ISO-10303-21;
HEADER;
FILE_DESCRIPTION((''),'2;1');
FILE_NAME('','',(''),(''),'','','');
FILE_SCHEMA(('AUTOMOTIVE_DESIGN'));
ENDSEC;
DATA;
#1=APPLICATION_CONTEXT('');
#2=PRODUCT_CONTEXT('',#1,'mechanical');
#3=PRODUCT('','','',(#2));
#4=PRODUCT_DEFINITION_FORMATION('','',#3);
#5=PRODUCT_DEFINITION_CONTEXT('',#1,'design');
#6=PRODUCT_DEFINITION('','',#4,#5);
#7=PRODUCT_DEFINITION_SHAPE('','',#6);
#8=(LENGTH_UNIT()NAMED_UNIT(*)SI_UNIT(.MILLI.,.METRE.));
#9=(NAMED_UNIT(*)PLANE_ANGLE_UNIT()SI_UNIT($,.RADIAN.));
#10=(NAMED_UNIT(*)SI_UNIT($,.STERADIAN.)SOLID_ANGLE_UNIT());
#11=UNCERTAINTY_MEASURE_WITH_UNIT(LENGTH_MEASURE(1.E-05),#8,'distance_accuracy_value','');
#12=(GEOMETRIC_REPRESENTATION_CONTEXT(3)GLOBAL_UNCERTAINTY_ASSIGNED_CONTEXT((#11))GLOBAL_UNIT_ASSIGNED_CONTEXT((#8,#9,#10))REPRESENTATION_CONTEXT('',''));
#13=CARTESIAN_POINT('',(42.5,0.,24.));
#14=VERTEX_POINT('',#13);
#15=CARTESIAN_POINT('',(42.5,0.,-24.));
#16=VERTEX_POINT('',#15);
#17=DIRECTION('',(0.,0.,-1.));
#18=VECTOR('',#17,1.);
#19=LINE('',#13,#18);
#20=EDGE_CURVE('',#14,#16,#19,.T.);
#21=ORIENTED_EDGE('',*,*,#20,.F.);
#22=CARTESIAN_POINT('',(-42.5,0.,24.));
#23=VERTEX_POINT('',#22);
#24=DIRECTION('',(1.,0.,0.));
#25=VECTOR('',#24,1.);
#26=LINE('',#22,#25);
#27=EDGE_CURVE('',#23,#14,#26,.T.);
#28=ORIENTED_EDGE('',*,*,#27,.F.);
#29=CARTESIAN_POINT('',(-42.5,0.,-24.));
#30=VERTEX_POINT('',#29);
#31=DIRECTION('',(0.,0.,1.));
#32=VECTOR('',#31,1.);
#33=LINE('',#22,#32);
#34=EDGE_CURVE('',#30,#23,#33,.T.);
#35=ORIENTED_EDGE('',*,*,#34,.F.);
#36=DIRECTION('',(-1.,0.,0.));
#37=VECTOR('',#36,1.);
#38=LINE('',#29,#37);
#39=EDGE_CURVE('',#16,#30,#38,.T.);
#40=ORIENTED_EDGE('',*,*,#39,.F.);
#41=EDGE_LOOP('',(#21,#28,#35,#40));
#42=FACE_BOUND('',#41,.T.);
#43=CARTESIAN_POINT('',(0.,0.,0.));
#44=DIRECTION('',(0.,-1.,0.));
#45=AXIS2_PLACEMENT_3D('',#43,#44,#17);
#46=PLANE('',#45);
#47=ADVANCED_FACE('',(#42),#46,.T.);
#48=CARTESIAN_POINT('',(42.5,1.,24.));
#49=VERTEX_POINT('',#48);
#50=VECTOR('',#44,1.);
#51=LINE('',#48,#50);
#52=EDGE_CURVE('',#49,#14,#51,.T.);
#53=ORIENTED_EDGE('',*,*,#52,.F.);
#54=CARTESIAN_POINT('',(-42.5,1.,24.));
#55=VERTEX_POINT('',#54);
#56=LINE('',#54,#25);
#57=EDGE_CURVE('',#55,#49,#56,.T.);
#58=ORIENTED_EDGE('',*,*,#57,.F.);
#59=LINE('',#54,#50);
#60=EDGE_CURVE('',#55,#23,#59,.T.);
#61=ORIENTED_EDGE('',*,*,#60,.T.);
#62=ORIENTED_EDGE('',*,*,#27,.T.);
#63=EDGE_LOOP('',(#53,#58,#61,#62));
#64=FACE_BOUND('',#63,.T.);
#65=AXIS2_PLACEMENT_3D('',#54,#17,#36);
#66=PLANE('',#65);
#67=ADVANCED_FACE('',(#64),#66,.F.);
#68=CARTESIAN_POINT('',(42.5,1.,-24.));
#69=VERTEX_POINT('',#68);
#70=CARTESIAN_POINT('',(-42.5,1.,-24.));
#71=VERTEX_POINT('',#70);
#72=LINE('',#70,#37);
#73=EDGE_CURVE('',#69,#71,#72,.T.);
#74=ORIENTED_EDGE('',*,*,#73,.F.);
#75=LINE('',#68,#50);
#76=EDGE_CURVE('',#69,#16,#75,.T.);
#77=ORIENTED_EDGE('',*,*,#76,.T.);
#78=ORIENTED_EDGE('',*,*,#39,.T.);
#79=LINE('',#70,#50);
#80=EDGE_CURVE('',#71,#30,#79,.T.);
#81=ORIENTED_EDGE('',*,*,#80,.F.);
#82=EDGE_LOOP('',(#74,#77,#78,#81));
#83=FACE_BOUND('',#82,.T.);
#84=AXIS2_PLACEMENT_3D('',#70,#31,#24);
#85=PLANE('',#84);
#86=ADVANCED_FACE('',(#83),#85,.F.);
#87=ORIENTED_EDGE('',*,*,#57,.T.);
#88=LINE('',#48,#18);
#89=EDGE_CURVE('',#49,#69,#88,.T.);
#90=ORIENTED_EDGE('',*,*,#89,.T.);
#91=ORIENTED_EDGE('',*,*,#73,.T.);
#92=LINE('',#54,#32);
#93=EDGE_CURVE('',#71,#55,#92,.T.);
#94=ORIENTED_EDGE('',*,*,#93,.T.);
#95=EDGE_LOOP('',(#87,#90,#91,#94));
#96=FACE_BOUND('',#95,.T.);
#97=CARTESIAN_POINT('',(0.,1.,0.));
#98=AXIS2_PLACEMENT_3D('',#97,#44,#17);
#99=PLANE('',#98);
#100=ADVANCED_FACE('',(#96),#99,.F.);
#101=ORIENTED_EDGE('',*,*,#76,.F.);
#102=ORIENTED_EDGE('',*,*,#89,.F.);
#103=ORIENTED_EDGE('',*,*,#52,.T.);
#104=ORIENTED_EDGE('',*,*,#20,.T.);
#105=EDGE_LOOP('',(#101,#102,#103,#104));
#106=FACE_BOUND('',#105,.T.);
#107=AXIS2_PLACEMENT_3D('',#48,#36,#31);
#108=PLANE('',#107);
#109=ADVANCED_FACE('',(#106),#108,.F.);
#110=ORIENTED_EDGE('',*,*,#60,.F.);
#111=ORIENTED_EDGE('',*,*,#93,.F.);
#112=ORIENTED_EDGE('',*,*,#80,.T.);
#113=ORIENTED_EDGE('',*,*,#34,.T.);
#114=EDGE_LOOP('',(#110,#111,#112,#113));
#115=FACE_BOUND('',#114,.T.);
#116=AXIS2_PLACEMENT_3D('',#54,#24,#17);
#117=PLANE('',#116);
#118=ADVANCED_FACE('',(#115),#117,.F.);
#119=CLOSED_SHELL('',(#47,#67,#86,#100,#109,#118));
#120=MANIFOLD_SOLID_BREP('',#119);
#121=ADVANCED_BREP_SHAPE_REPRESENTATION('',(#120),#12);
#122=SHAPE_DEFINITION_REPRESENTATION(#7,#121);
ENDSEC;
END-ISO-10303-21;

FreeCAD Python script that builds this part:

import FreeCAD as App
import Part
import Sketcher


def add_polygon(sketch, points):
    """Adds a closed chain of lines whose ends are joined by coincident constraints."""
    first, n = sketch.GeometryCount, len(points)
    for a, b in zip(points, points[1:] + points[:1]):
        sketch.addGeometry(Part.LineSegment(App.Vector(*a, 0), App.Vector(*b, 0)), False)
    for i in range(n):
        sketch.addConstraint(Sketcher.Constraint("Coincident", first + i, 2, first + (i + 1) % n, 1))

doc = App.newDocument("Part")
body = doc.addObject("PartDesign::Body", "Body")

sketch1 = doc.addObject("Sketcher::SketchObject", "Sketch")
body.addObject(sketch1)
sketch1.AttachmentSupport = (doc.XZ_Plane, [""])
sketch1.MapMode = "FlatFace"
add_polygon(sketch1, [(-42, -24), (-42, 24), (42, 24), (42, -24)])
sketch1.addConstraint(Sketcher.Constraint("Vertical", 0))
sketch1.addConstraint(Sketcher.Constraint("Horizontal", 1))
sketch1.addConstraint(Sketcher.Constraint("Vertical", 2))
sketch1.addConstraint(Sketcher.Constraint("Horizontal", 3))
sketch1.addConstraint(Sketcher.Constraint("Symmetric", 0, 2, 2, 2, -1, 1))
sketch1.addConstraint(Sketcher.Constraint("DistanceX", 1, 1, 1, 2, 85.0))
sketch1.addConstraint(Sketcher.Constraint("DistanceY", 0, 1, 0, 2, 48.0))
pad1 = doc.addObject("PartDesign::Pad", "Pad")
body.addObject(pad1)
pad1.Profile = sketch1
pad1.Length = 1
pad1.Reversed = True

doc.recompute()
